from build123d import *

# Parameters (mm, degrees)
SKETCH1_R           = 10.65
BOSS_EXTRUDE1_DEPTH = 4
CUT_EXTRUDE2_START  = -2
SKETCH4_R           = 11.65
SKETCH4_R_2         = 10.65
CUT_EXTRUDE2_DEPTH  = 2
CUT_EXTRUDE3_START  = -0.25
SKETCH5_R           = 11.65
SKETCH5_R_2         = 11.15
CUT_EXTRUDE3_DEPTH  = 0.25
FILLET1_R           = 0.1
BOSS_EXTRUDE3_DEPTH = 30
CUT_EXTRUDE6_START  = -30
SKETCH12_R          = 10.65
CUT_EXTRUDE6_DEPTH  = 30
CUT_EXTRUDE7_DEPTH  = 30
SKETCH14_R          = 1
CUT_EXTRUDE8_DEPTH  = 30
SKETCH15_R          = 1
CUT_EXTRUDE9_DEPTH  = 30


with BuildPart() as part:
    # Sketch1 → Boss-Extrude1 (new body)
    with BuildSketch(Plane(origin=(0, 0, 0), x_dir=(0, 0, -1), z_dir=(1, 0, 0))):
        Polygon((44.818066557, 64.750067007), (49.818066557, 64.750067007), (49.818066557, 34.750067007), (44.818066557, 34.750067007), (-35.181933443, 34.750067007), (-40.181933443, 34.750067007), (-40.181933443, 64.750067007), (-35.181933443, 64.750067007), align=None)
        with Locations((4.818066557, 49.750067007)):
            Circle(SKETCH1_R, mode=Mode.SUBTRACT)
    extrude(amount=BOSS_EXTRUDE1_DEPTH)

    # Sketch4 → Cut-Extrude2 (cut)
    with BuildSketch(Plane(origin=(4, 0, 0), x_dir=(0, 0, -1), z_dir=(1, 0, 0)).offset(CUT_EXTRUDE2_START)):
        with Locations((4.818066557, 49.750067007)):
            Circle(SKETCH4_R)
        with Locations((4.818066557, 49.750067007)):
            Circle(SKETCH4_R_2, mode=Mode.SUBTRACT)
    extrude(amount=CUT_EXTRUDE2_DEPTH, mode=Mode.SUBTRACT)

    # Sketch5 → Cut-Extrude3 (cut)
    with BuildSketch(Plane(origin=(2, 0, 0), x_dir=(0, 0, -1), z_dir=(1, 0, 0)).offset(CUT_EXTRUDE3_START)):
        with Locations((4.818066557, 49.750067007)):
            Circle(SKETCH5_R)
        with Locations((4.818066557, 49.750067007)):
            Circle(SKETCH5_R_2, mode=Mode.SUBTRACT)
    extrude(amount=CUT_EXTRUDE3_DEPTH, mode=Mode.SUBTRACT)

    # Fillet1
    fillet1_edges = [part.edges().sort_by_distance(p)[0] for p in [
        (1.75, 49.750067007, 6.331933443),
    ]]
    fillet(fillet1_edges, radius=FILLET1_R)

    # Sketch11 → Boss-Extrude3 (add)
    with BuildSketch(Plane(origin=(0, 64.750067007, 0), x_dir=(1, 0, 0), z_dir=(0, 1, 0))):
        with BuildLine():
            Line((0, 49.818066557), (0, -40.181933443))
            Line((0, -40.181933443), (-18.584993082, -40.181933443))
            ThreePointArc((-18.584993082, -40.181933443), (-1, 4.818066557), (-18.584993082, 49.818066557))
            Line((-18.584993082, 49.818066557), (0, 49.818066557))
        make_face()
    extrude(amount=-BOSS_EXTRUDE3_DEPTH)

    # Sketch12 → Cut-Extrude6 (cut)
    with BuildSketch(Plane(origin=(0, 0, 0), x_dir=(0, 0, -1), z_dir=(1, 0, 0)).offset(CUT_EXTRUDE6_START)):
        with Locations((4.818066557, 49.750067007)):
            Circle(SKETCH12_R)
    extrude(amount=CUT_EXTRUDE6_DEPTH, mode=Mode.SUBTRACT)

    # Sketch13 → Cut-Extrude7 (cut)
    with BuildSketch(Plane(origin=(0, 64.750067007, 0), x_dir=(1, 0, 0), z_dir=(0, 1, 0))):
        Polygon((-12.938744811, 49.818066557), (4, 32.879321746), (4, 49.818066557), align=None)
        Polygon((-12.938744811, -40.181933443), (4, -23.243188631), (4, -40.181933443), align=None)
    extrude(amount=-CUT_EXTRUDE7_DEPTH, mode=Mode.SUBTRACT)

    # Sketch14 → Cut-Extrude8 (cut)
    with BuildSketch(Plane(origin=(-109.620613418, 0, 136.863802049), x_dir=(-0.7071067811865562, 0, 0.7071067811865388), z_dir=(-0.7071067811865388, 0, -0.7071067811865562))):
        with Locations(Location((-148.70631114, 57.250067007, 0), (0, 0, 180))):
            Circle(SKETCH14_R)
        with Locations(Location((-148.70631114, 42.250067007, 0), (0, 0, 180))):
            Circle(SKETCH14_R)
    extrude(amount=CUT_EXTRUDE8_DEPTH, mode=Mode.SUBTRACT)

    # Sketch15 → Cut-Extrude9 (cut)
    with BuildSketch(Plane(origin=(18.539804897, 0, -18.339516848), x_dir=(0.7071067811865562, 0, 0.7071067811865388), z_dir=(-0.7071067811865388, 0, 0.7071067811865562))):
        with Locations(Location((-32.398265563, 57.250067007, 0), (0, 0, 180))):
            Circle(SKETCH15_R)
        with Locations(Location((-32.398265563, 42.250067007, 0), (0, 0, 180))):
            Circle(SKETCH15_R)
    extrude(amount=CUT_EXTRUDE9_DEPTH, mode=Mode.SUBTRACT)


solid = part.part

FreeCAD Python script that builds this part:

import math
import FreeCAD as App
import Part
import Sketcher
from FreeCAD import Vector
Q = App.Units.Quantity


def edges_at(feature, points):
    """Names of the edges that pass closest to the given points."""
    edges = feature.Shape.Edges
    near = lambda p: min(range(len(edges)), key=lambda i: edges[i].distToShape(Part.Vertex(*p))[0])
    return sorted({f"Edge{near(p) + 1}" for p in points})


def add_polygon(sketch, points):
    """Adds a closed chain of lines whose ends are joined by coincident constraints."""
    first, n = sketch.GeometryCount, len(points)
    for a, b in zip(points, points[1:] + points[:1]):
        sketch.addGeometry(Part.LineSegment(App.Vector(*a, 0), App.Vector(*b, 0)), False)
    for i in range(n):
        sketch.addConstraint(Sketcher.Constraint("Coincident", first + i, 2, first + (i + 1) % n, 1))

doc = App.newDocument("Part")
params = doc.addObject("Spreadsheet::Sheet", "Params")
for row, (alias, value) in enumerate([
    ("sketch1_diameter", "21.3 mm"),
    ("sketch1_width", "30 mm"),
    ("sketch1_height", "90 mm"),
    ("pad1_length", "4 mm"),
    ("sketch2_diameter", "23.3 mm"),
    ("sketch2_diameter2", "21.3 mm"),
    ("pocket1_length", "2 mm"),
    ("sketch3_diameter", "23.3 mm"),
    ("sketch3_diameter2", "22.3 mm"),
    ("pocket2_length", "0.25 mm"),
    ("fillet_radius", "0.1 mm"),
    ("sketch4_height", "90 mm"),
    ("sketch4_radius", "66.37 mm"),
    ("pad2_length", "30 mm"),
    ("sketch5_diameter", "21.3 mm"),
    ("pocket3_length", "30 mm"),
    ("pocket4_length", "30 mm"),
    ("sketch7_diameter", "2 mm"),
    ("pocket5_length", "30 mm"),
    ("sketch8_diameter", "2 mm"),
    ("pocket6_length", "30 mm"),
], start=1):
    params.set(f"A{row}", alias)
    params.set(f"B{row}", "=" + value)
    params.setAlias(f"B{row}", alias)

body = doc.addObject("PartDesign::Body", "Body")

sketch1 = body.newObject("Sketcher::SketchObject", "Sketch")
sketch1.AttachmentSupport = (doc.getObject("YZ_Plane"), [""])
sketch1.MapMode = "FlatFace"
add_polygon(sketch1, [(65, -50), (65, 40), (35, 40), (35, -50)])
sketch1.addGeometry(Part.Circle(Vector(50, -5, 0), Vector(0, 0, 1), 11), False)
sketch1.addConstraint(Sketcher.Constraint("Vertical", 0))
sketch1.addConstraint(Sketcher.Constraint("Horizontal", 1))
sketch1.addConstraint(Sketcher.Constraint("Vertical", 2))
sketch1.addConstraint(Sketcher.Constraint("Horizontal", 3))
sketch1.addConstraint(Sketcher.Constraint("Diameter", 4, Q("21.3 mm")))
sketch1.addConstraint(Sketcher.Constraint("DistanceX", 1, 2, 1, 1, Q("30 mm")))
sketch1.addConstraint(Sketcher.Constraint("DistanceY", 0, 1, 0, 2, Q("90 mm")))
sketch1.addConstraint(Sketcher.Constraint("DistanceX", 4, 3, 0, 2, Q("15 mm")))
sketch1.addConstraint(Sketcher.Constraint("DistanceY", 4, 3, 0, 2, Q("45 mm")))
sketch1.addConstraint(Sketcher.Constraint("DistanceX", -1, 1, 4, 3, Q("49.750067 mm")))
sketch1.addConstraint(Sketcher.Constraint("DistanceY", 4, 3, -1, 1, Q("4.818067 mm")))
sketch1.setExpression("Constraints[8]", "Params.sketch1_diameter")
sketch1.setExpression("Constraints[9]", "Params.sketch1_width")
sketch1.setExpression("Constraints[10]", "Params.sketch1_height")
pad1 = body.newObject("PartDesign::Pad", "Pad")
pad1.Profile = sketch1
pad1.setExpression("Length", "Params.pad1_length")

sketch2 = body.newObject("Sketcher::SketchObject", "Sketch001")
sketch2.AttachmentSupport = (doc.getObject("YZ_Plane"), [""])
sketch2.MapMode = "FlatFace"
sketch2.AttachmentOffset = App.Placement(Vector(0, 0, 2), App.Rotation())
sketch2.addGeometry(Part.Circle(Vector(50, -5, 0), Vector(0, 0, 1), 12), False)
sketch2.addGeometry(Part.Circle(Vector(50, -5, 0), Vector(0, 0, 1), 11), False)
sketch2.addConstraint(Sketcher.Constraint("Coincident", 1, 3, 0, 3))
sketch2.addConstraint(Sketcher.Constraint("Diameter", 0, Q("23.3 mm")))
sketch2.addConstraint(Sketcher.Constraint("Diameter", 1, Q("21.3 mm")))
sketch2.addConstraint(Sketcher.Constraint("DistanceX", -1, 1, 0, 3, Q("49.750067 mm")))
sketch2.addConstraint(Sketcher.Constraint("DistanceY", 0, 3, -1, 1, Q("4.818067 mm")))
sketch2.setExpression("Constraints[1]", "Params.sketch2_diameter")
sketch2.setExpression("Constraints[2]", "Params.sketch2_diameter2")
pocket1 = body.newObject("PartDesign::Pocket", "Pocket")
pocket1.Profile = sketch2
pocket1.setExpression("Length", "Params.pocket1_length")
pocket1.Reversed = True

sketch3 = body.newObject("Sketcher::SketchObject", "Sketch002")
sketch3.AttachmentSupport = (doc.getObject("YZ_Plane"), [""])
sketch3.MapMode = "FlatFace"
sketch3.AttachmentOffset = App.Placement(Vector(0, 0, 1.75), App.Rotation())
sketch3.addGeometry(Part.Circle(Vector(50, -5, 0), Vector(0, 0, 1), 12), False)
sketch3.addGeometry(Part.Circle(Vector(50, -5, 0), Vector(0, 0, 1), 11), False)
sketch3.addConstraint(Sketcher.Constraint("Coincident", 1, 3, 0, 3))
sketch3.addConstraint(Sketcher.Constraint("Diameter", 0, Q("23.3 mm")))
sketch3.addConstraint(Sketcher.Constraint("Diameter", 1, Q("22.3 mm")))
sketch3.addConstraint(Sketcher.Constraint("DistanceX", -1, 1, 0, 3, Q("49.750067 mm")))
sketch3.addConstraint(Sketcher.Constraint("DistanceY", 0, 3, -1, 1, Q("4.818067 mm")))
sketch3.setExpression("Constraints[1]", "Params.sketch3_diameter")
sketch3.setExpression("Constraints[2]", "Params.sketch3_diameter2")
pocket2 = body.newObject("PartDesign::Pocket", "Pocket001")
pocket2.Profile = sketch3
pocket2.setExpression("Length", "Params.pocket2_length")
pocket2.Reversed = True
doc.recompute()

fillet = body.newObject("PartDesign::Fillet", "Fillet")
fillet.Base = (pocket2, edges_at(pocket2, [(1.75, 49.75, 6.332)]))
fillet.setExpression("Radius", "Params.fillet_radius")

sketch4 = body.newObject("Sketcher::SketchObject", "Sketch003")
sketch4.AttachmentSupport = (doc.getObject("XZ_Plane"), [""])
sketch4.MapMode = "FlatFace"
sketch4.AttachmentOffset = App.Placement(Vector(0, 0, -64.750067), App.Rotation())
sketch4.addGeometry(Part.LineSegment(Vector(0, 40, 0), Vector(0, -50, 0)), False)
sketch4.addGeometry(Part.LineSegment(Vector(0, -50, 0), Vector(-19, -50, 0)), False)
sketch4.addGeometry(Part.ArcOfCircle(Part.Circle(Vector(-67, -5, 0), Vector(0, 0, 1), 66), math.radians(-43), math.radians(43)), False)
sketch4.addGeometry(Part.LineSegment(Vector(-19, 40, 0), Vector(0, 40, 0)), False)
sketch4.addConstraint(Sketcher.Constraint("Coincident", 0, 2, 1, 1))
sketch4.addConstraint(Sketcher.Constraint("Coincident", 1, 2, 2, 1))
sketch4.addConstraint(Sketcher.Constraint("Coincident", 2, 2, 3, 1))
sketch4.addConstraint(Sketcher.Constraint("Coincident", 3, 2, 0, 1))
sketch4.addConstraint(Sketcher.Constraint("Vertical", 0))
sketch4.addConstraint(Sketcher.Constraint("Horizontal", 1))
sketch4.addConstraint(Sketcher.Constraint("Horizontal", 3))
sketch4.addConstraint(Sketcher.Constraint("PointOnObject", 0, 2, -2))
sketch4.addConstraint(Sketcher.Constraint("Vertical", 1, 2, 2, 2))
sketch4.addConstraint(Sketcher.Constraint("DistanceY", 0, 2, 0, 1, Q("90 mm")))
sketch4.addConstraint(Sketcher.Constraint("Radius", 2, Q("66.37 mm")))
sketch4.addConstraint(Sketcher.Constraint("DistanceX", 2, 3, -1, 1, Q("67.37 mm")))
sketch4.addConstraint(Sketcher.Constraint("DistanceY", 2, 3, -1, 1, Q("4.818067 mm")))
sketch4.setExpression("Constraints[9]", "Params.sketch4_height")
sketch4.setExpression("Constraints[10]", "Params.sketch4_radius")
pad2 = body.newObject("PartDesign::Pad", "Pad001")
pad2.Profile = sketch4
pad2.setExpression("Length", "Params.pad2_length")

sketch5 = body.newObject("Sketcher::SketchObject", "Sketch004")
sketch5.AttachmentSupport = (doc.getObject("YZ_Plane"), [""])
sketch5.MapMode = "FlatFace"
sketch5.AttachmentOffset = App.Placement(Vector(0, 0, -30), App.Rotation())
sketch5.addGeometry(Part.Circle(Vector(50, -5, 0), Vector(0, 0, 1), 11), False)
sketch5.addConstraint(Sketcher.Constraint("Diameter", 0, Q("21.3 mm")))
sketch5.addConstraint(Sketcher.Constraint("DistanceX", -1, 1, 0, 3, Q("49.750067 mm")))
sketch5.addConstraint(Sketcher.Constraint("DistanceY", 0, 3, -1, 1, Q("4.818067 mm")))
sketch5.setExpression("Constraints[0]", "Params.sketch5_diameter")
pocket3 = body.newObject("PartDesign::Pocket", "Pocket002")
pocket3.Profile = sketch5
pocket3.setExpression("Length", "Params.pocket3_length")
pocket3.Reversed = True

sketch6 = body.newObject("Sketcher::SketchObject", "Sketch005")
sketch6.AttachmentSupport = (doc.getObject("XZ_Plane"), [""])
sketch6.MapMode = "FlatFace"
sketch6.AttachmentOffset = App.Placement(Vector(0, 0, -64.750067), App.Rotation())
add_polygon(sketch6, [(-13, -50), (4, -33), (4, -50)])
add_polygon(sketch6, [(4, 23), (-13, 40), (4, 40)])
sketch6.addConstraint(Sketcher.Constraint("Vertical", 1))
sketch6.addConstraint(Sketcher.Constraint("Horizontal", 2))
sketch6.addConstraint(Sketcher.Constraint("Horizontal", 4))
sketch6.addConstraint(Sketcher.Constraint("Vertical", 5))
sketch6.addConstraint(Sketcher.Constraint("Perpendicular", 0, 3))
sketch6.addConstraint(Sketcher.Constraint("Vertical", 2, 2, 3, 2))
sketch6.addConstraint(Sketcher.Constraint("Vertical", 1, 2, 4, 2))
sketch6.addConstraint(Sketcher.Constraint("Equal", 4, 1))
sketch6.addConstraint(Sketcher.Constraint("DistanceX", -1, 1, 0, 2, Q("4 mm")))
sketch6.addConstraint(Sketcher.Constraint("DistanceY", 2, 2, 3, 2, Q("90 mm")))
sketch6.addConstraint(Sketcher.Constraint("DistanceX", 2, 2, 2, 1, Q("16.938745 mm")))
sketch6.addConstraint(Sketcher.Constraint("DistanceY", 0, 2, -1, 1, Q("32.879322 mm")))
pocket4 = body.newObject("PartDesign::Pocket", "Pocket003")
pocket4.Profile = sketch6
pocket4.setExpression("Length", "Params.pocket4_length")
pocket4.Reversed = True

sketch7 = body.newObject("Sketcher::SketchObject", "Sketch006")
sketch7.Placement = App.Placement(Vector(-109.620613, 0, 136.863802), App.Rotation(Vector(-0.707106781, 0, 0.707106781), Vector(0, 0.999999999, 0), Vector(-0.707106781, 0, -0.707106781), "ZXY"))
sketch7.addGeometry(Part.Circle(Vector(-148.7, 57.3, 0), Vector(0, 0, 1), 1), False)
sketch7.addGeometry(Part.Circle(Vector(-148.7, 42.3, 0), Vector(0, 0, 1), 1), False)
sketch7.addConstraint(Sketcher.Constraint("Equal", 0, 1))
sketch7.addConstraint(Sketcher.Constraint("Vertical", 0, 3, 1, 3))
sketch7.addConstraint(Sketcher.Constraint("Diameter", 0, Q("2 mm")))
sketch7.addConstraint(Sketcher.Constraint("DistanceY", 1, 3, 0, 3, Q("15 mm")))
sketch7.addConstraint(Sketcher.Constraint("DistanceX", 0, 3, -1, 1, Q("148.706311 mm")))
sketch7.addConstraint(Sketcher.Constraint("DistanceY", -1, 1, 0, 3, Q("57.250067 mm")))
sketch7.setExpression("Constraints[2]", "Params.sketch7_diameter")
pocket5 = body.newObject("PartDesign::Pocket", "Pocket004")
pocket5.Profile = sketch7
pocket5.setExpression("Length", "Params.pocket5_length")
pocket5.Reversed = True

sketch8 = body.newObject("Sketcher::SketchObject", "Sketch007")
sketch8.Placement = App.Placement(Vector(18.539805, 0, -18.339517), App.Rotation(Vector(0.707106781, 0, 0.707106781), Vector(0, 0.999999999, 0), Vector(-0.707106781, 0, 0.707106781), "ZXY"))
sketch8.addGeometry(Part.Circle(Vector(-32.4, 57.3, 0), Vector(0, 0, 1), 1), False)
sketch8.addGeometry(Part.Circle(Vector(-32.4, 42.3, 0), Vector(0, 0, 1), 1), False)
sketch8.addConstraint(Sketcher.Constraint("Equal", 0, 1))
sketch8.addConstraint(Sketcher.Constraint("Vertical", 0, 3, 1, 3))
sketch8.addConstraint(Sketcher.Constraint("Diameter", 0, Q("2 mm")))
sketch8.addConstraint(Sketcher.Constraint("DistanceY", 1, 3, 0, 3, Q("15 mm")))
sketch8.addConstraint(Sketcher.Constraint("DistanceX", 0, 3, -1, 1, Q("32.398266 mm")))
sketch8.addConstraint(Sketcher.Constraint("DistanceY", -1, 1, 0, 3, Q("57.250067 mm")))
sketch8.setExpression("Constraints[2]", "Params.sketch8_diameter")
pocket6 = body.newObject("PartDesign::Pocket", "Pocket005")
pocket6.Profile = sketch8
pocket6.setExpression("Length", "Params.pocket6_length")
pocket6.Reversed = True

doc.recompute()
